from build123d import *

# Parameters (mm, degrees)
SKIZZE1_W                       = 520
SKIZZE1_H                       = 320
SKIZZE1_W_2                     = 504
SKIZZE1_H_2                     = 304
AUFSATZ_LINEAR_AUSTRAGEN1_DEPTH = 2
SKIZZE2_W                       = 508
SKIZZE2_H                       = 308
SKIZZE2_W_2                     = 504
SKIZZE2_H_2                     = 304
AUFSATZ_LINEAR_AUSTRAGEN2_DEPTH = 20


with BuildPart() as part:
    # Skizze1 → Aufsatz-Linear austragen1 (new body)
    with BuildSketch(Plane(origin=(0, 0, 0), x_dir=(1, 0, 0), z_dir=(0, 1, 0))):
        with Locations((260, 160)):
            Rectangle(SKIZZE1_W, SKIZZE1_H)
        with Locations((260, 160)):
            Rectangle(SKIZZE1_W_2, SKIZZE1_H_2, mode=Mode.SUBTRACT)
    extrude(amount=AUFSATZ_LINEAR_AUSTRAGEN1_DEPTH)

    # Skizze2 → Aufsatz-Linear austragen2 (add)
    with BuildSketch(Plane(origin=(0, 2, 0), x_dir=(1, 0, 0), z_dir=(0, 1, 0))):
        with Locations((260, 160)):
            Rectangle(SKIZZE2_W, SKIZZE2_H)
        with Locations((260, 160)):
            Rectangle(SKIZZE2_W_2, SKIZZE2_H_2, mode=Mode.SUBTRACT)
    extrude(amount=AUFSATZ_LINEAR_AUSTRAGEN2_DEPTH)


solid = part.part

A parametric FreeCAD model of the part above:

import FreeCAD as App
import Part
import Sketcher
from FreeCAD import Vector


def add_polygon(sketch, points):
    """Adds a closed chain of lines whose ends are joined by coincident constraints."""
    first, n = sketch.GeometryCount, len(points)
    for a, b in zip(points, points[1:] + points[:1]):
        sketch.addGeometry(Part.LineSegment(App.Vector(*a, 0), App.Vector(*b, 0)), False)
    for i in range(n):
        sketch.addConstraint(Sketcher.Constraint("Coincident", first + i, 2, first + (i + 1) % n, 1))

doc = App.newDocument("Part")
body = doc.addObject("PartDesign::Body", "Body")

sketch1 = body.newObject("Sketcher::SketchObject", "Sketch")
sketch1.AttachmentSupport = (doc.getObject("XZ_Plane"), [""])
sketch1.MapMode = "FlatFace"
add_polygon(sketch1, [(0, -320), (0, 0), (520, 0), (520, -320)])
add_polygon(sketch1, [(512, -8), (8, -8), (8, -312), (512, -312)])
sketch1.addConstraint([
    Sketcher.Constraint("Vertical", 0),
    Sketcher.Constraint("Horizontal", 1),
    Sketcher.Constraint("Vertical", 2),
    Sketcher.Constraint("Horizontal", 3),
    Sketcher.Constraint("Horizontal", 4),
    Sketcher.Constraint("Vertical", 5),
    Sketcher.Constraint("Horizontal", 6),
    Sketcher.Constraint("Vertical", 7),
    Sketcher.Constraint("Coincident", 0, 2, -1, 1),
    Sketcher.Constraint("DistanceX", 1, 1, 1, 2, 520.0),
    Sketcher.Constraint("DistanceX", 4, 2, 4, 1, 504.0),
    Sketcher.Constraint("DistanceY", 0, 1, 0, 2, 320.0),
    Sketcher.Constraint("DistanceY", 5, 2, 5, 1, 304.0),
    Sketcher.Constraint("DistanceX", -1, 1, 4, 2, 8.0),
    Sketcher.Constraint("DistanceY", 4, 2, -1, 1, 8.0),
])
pad1 = body.newObject("PartDesign::Pad", "Pad")
pad1.Profile = sketch1
pad1.Length = 2
pad1.Reversed = True

sketch2 = body.newObject("Sketcher::SketchObject", "Sketch001")
sketch2.AttachmentSupport = (doc.getObject("XZ_Plane"), [""])
sketch2.MapMode = "FlatFace"
sketch2.AttachmentOffset = App.Placement(Vector(0, 0, -2), App.Rotation())
add_polygon(sketch2, [(6, -314), (6, -6), (514, -6), (514, -314)])
add_polygon(sketch2, [(512, -8), (8, -8), (8, -312), (512, -312)])
sketch2.addConstraint([
    Sketcher.Constraint("Vertical", 0),
    Sketcher.Constraint("Horizontal", 1),
    Sketcher.Constraint("Vertical", 2),
    Sketcher.Constraint("Horizontal", 3),
    Sketcher.Constraint("Horizontal", 4),
    Sketcher.Constraint("Vertical", 5),
    Sketcher.Constraint("Horizontal", 6),
    Sketcher.Constraint("Vertical", 7),
    Sketcher.Constraint("DistanceX", 1, 1, 1, 2, 508.0),
    Sketcher.Constraint("DistanceX", 4, 2, 4, 1, 504.0),
    Sketcher.Constraint("DistanceY", 0, 1, 0, 2, 308.0),
    Sketcher.Constraint("DistanceY", 5, 2, 5, 1, 304.0),
    Sketcher.Constraint("DistanceX", -1, 1, 0, 2, 6.0),
    Sketcher.Constraint("DistanceY", 0, 2, -1, 1, 6.0),
    Sketcher.Constraint("DistanceX", -1, 1, 4, 2, 8.0),
    Sketcher.Constraint("DistanceY", 4, 2, -1, 1, 8.0),
])
pad2 = body.newObject("PartDesign::Pad", "Pad001")
pad2.Profile = sketch2
pad2.Length = 20
pad2.Reversed = True

doc.recompute()
